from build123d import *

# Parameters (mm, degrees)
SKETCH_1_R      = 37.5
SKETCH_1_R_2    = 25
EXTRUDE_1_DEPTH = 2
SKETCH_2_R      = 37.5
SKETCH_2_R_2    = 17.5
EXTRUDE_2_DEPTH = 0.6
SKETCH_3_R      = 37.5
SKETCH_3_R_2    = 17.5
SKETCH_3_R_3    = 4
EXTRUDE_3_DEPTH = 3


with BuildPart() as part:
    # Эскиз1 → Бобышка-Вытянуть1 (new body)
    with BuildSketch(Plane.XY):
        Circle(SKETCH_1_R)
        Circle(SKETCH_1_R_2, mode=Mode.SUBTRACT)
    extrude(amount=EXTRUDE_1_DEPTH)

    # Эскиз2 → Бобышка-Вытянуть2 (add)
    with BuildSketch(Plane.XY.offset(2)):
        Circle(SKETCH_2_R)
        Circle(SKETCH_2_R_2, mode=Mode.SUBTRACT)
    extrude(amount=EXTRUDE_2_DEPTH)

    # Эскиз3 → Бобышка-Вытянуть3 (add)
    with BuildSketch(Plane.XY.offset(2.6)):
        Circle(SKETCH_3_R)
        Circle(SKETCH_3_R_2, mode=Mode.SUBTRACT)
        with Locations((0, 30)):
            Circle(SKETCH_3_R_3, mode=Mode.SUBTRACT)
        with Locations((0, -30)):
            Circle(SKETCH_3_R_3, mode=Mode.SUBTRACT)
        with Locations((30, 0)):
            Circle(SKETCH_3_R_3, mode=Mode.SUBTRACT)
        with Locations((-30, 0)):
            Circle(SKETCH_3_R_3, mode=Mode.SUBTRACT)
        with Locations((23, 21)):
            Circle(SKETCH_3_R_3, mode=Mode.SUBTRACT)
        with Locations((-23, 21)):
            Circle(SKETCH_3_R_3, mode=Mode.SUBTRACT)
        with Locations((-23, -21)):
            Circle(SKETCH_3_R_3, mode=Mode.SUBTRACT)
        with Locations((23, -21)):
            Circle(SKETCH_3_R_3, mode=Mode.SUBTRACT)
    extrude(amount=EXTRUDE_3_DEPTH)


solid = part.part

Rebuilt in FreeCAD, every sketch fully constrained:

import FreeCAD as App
import Part
import Sketcher
Q = App.Units.Quantity

doc = App.newDocument("Part")
body = doc.addObject("PartDesign::Body", "Body")

# Sketch on XY plane
sketch1 = body.newObject("Sketcher::SketchObject", "Sketch")
sketch1.AttachmentSupport = (doc.getObject("XY_Plane"), [""])
sketch1.MapMode = "FlatFace"
sketch1.addGeometry([
    Part.Circle(App.Vector(0, 0, 0), App.Vector(0, 0, 1), 37.5),
    Part.Circle(App.Vector(0, 0, 0), App.Vector(0, 0, 1), 25),
], False)
sketch1.addConstraint([
    Sketcher.Constraint("Coincident", 0, 3, -1, 1),
    Sketcher.Constraint("Coincident", 1, 3, -1, 1),
    Sketcher.Constraint("Diameter", 0, Q("75 mm")),
    Sketcher.Constraint("Diameter", 1, Q("50 mm")),
])
pad1 = body.newObject("PartDesign::Pad", "Pad")
pad1.Profile = sketch1
pad1.Length = 2

# Sketch on XY plane
sketch2 = body.newObject("Sketcher::SketchObject", "Sketch001")
sketch2.AttachmentSupport = (doc.getObject("XY_Plane"), [""])
sketch2.MapMode = "FlatFace"
sketch2.AttachmentOffset = App.Placement(App.Vector(0, 0, 2), App.Rotation())
sketch2.addGeometry([
    Part.Circle(App.Vector(0, 0, 0), App.Vector(0, 0, 1), 37.5),
    Part.Circle(App.Vector(0, 0, 0), App.Vector(0, 0, 1), 17.5),
], False)
sketch2.addConstraint([
    Sketcher.Constraint("Coincident", 0, 3, -1, 1),
    Sketcher.Constraint("Coincident", 1, 3, -1, 1),
    Sketcher.Constraint("Diameter", 0, Q("75 mm")),
    Sketcher.Constraint("Diameter", 1, Q("35 mm")),
])
pad2 = body.newObject("PartDesign::Pad", "Pad001")
pad2.Profile = sketch2
pad2.Length = 0.6

# Sketch on XY plane
sketch3 = body.newObject("Sketcher::SketchObject", "Sketch002")
sketch3.AttachmentSupport = (doc.getObject("XY_Plane"), [""])
sketch3.MapMode = "FlatFace"
sketch3.AttachmentOffset = App.Placement(App.Vector(0, 0, 2.6), App.Rotation())
sketch3.addGeometry([
    Part.Circle(App.Vector(0, 0, 0), App.Vector(0, 0, 1), 37.5),  # 0
    Part.Circle(App.Vector(-23, -21, 0), App.Vector(0, 0, 1), 4),  # 1
    Part.Circle(App.Vector(0, -30, 0), App.Vector(0, 0, 1), 4),  # 2
    Part.Circle(App.Vector(23, -21, 0), App.Vector(0, 0, 1), 4),  # 3
    Part.Circle(App.Vector(-30, 0, 0), App.Vector(0, 0, 1), 4),  # 4
    Part.Circle(App.Vector(-23, 21, 0), App.Vector(0, 0, 1), 4),  # 5
    Part.Circle(App.Vector(0, 0, 0), App.Vector(0, 0, 1), 17.5),  # 6
    Part.Circle(App.Vector(30, 0, 0), App.Vector(0, 0, 1), 4),  # 7
    Part.Circle(App.Vector(0, 30, 0), App.Vector(0, 0, 1), 4),  # 8
    Part.Circle(App.Vector(23, 21, 0), App.Vector(0, 0, 1), 4),  # 9
], False)
sketch3.addConstraint([
    Sketcher.Constraint("Coincident", 0, 3, -1, 1),
    Sketcher.Constraint("Coincident", 6, 3, -1, 1),
    Sketcher.Constraint("Equal", 1, 2),
    Sketcher.Constraint("Equal", 2, 3),
    Sketcher.Constraint("Equal", 3, 4),
    Sketcher.Constraint("Equal", 4, 5),
    Sketcher.Constraint("Equal", 5, 7),
    Sketcher.Constraint("Equal", 7, 8),
    Sketcher.Constraint("Equal", 8, 9),
    Sketcher.Constraint("Symmetric", 3, 3, 5, 3, -1, 1),
    Sketcher.Constraint("Symmetric", 4, 3, 7, 3, -1, 1),
    Sketcher.Constraint("Symmetric", 2, 3, 8, 3, -1, 1),
    Sketcher.Constraint("Symmetric", 1, 3, 9, 3, -1, 1),
    Sketcher.Constraint("Symmetric", 1, 3, 3, 3, -2),
    Sketcher.Constraint("PointOnObject", 2, 3, -2),
    Sketcher.Constraint("PointOnObject", 4, 3, -1),
    Sketcher.Constraint("Diameter", 0, Q("75 mm")),
    Sketcher.Constraint("Diameter", 1, Q("8 mm")),
    Sketcher.Constraint("Diameter", 6, Q("35 mm")),
    Sketcher.Constraint("DistanceX", 1, 3, -1, 1, Q("23 mm")),
    Sketcher.Constraint("DistanceY", 1, 3, -1, 1, Q("21 mm")),
    Sketcher.Constraint("DistanceY", 2, 3, -1, 1, Q("30 mm")),
    Sketcher.Constraint("DistanceX", 4, 3, -1, 1, Q("30 mm")),
])
pad3 = body.newObject("PartDesign::Pad", "Pad002")
pad3.Profile = sketch3
pad3.Length = 3

doc.recompute()
